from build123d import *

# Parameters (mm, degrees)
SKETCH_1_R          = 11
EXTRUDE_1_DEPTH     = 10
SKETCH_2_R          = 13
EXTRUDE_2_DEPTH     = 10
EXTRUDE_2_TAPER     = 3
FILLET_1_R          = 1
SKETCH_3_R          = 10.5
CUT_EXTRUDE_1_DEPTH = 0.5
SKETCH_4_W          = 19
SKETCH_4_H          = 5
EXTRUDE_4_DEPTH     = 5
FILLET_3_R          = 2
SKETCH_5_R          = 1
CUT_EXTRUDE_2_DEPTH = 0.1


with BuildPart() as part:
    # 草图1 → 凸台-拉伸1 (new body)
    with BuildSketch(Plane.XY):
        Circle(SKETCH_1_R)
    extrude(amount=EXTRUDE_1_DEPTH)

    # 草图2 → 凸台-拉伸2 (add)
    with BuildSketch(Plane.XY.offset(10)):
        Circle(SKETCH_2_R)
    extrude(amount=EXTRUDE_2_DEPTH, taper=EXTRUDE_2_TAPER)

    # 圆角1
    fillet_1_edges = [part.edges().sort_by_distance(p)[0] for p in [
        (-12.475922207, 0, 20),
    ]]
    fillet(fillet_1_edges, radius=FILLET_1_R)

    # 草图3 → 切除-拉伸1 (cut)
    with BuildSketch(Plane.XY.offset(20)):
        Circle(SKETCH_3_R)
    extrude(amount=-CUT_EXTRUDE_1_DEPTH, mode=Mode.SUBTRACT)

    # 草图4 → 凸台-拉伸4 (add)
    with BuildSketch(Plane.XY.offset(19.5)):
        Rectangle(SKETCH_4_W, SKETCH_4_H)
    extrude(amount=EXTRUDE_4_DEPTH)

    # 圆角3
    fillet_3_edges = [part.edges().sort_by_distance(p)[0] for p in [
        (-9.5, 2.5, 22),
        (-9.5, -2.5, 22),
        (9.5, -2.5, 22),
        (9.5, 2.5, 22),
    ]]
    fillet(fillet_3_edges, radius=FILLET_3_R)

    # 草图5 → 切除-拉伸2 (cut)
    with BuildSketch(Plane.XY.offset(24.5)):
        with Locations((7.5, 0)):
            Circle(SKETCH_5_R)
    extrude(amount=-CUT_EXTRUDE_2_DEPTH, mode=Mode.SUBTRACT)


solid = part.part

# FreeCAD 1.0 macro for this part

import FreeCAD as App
import Part
import Sketcher
from FreeCAD import Vector
Q = App.Units.Quantity


def edges_at(feature, points):
    """Names of the edges that pass closest to the given points."""
    edges = feature.Shape.Edges
    near = lambda p: min(range(len(edges)), key=lambda i: edges[i].distToShape(Part.Vertex(*p))[0])
    return sorted({f"Edge{near(p) + 1}" for p in points})


def add_polygon(sketch, points):
    """Adds a closed chain of lines whose ends are joined by coincident constraints."""
    first, n = sketch.GeometryCount, len(points)
    for a, b in zip(points, points[1:] + points[:1]):
        sketch.addGeometry(Part.LineSegment(App.Vector(*a, 0), App.Vector(*b, 0)), False)
    for i in range(n):
        sketch.addConstraint(Sketcher.Constraint("Coincident", first + i, 2, first + (i + 1) % n, 1))

doc = App.newDocument("Part")
body = doc.addObject("PartDesign::Body", "Body")

# Sketch on XY plane
sketch1 = body.newObject("Sketcher::SketchObject", "Sketch")
sketch1.AttachmentSupport = (doc.getObject("XY_Plane"), [""])
sketch1.MapMode = "FlatFace"
sketch1.addGeometry(Part.Circle(Vector(0, 0, 0), Vector(0, 0, 1), 11), False)
sketch1.addConstraint([
    Sketcher.Constraint("Coincident", 0, 3, -1, 1),
    Sketcher.Constraint("Diameter", 0, Q("22 mm")),
])
pad1 = body.newObject("PartDesign::Pad", "Pad")
pad1.Profile = sketch1
pad1.Length = 10

# Sketch on XY plane
sketch2 = body.newObject("Sketcher::SketchObject", "Sketch001")
sketch2.AttachmentSupport = (doc.getObject("XY_Plane"), [""])
sketch2.MapMode = "FlatFace"
sketch2.AttachmentOffset = App.Placement(Vector(0, 0, 10), App.Rotation())
sketch2.addGeometry(Part.Circle(Vector(0, 0, 0), Vector(0, 0, 1), 13), False)
sketch2.addConstraint([
    Sketcher.Constraint("Coincident", 0, 3, -1, 1),
    Sketcher.Constraint("Diameter", 0, Q("26 mm")),
])
pad2 = body.newObject("PartDesign::Pad", "Pad001")
pad2.Profile = sketch2
pad2.Length = 10
pad2.TaperAngle = -3
doc.recompute()

fillet = body.newObject("PartDesign::Fillet", "Fillet")
fillet.Base = (pad2, edges_at(pad2, [(-12.476, 0, 20)]))
fillet.Radius = 1

# Sketch on XY plane
sketch3 = body.newObject("Sketcher::SketchObject", "Sketch002")
sketch3.AttachmentSupport = (doc.getObject("XY_Plane"), [""])
sketch3.MapMode = "FlatFace"
sketch3.AttachmentOffset = App.Placement(Vector(0, 0, 20), App.Rotation())
sketch3.addGeometry(Part.Circle(Vector(0, 0, 0), Vector(0, 0, 1), 10.5), False)
sketch3.addConstraint([
    Sketcher.Constraint("Coincident", 0, 3, -1, 1),
    Sketcher.Constraint("Diameter", 0, Q("21 mm")),
])
pocket1 = body.newObject("PartDesign::Pocket", "Pocket")
pocket1.Profile = sketch3
pocket1.Length = 0.5

# Sketch on XY plane
sketch4 = body.newObject("Sketcher::SketchObject", "Sketch003")
sketch4.AttachmentSupport = (doc.getObject("XY_Plane"), [""])
sketch4.MapMode = "FlatFace"
sketch4.AttachmentOffset = App.Placement(Vector(0, 0, 19.5), App.Rotation())
add_polygon(sketch4, [(-9.5, 2.5), (-9.5, -2.5), (9.5, -2.5), (9.5, 2.5)])  # lines 0-3
sketch4.addConstraint([
    Sketcher.Constraint("Vertical", 0),
    Sketcher.Constraint("Horizontal", 1),
    Sketcher.Constraint("Vertical", 2),
    Sketcher.Constraint("Horizontal", 3),
    Sketcher.Constraint("Symmetric", 0, 2, 2, 2, -1, 1),
    Sketcher.Constraint("DistanceX", 1, 1, 1, 2, Q("19 mm")),
    Sketcher.Constraint("DistanceY", 0, 2, 0, 1, Q("5 mm")),
])
pad3 = body.newObject("PartDesign::Pad", "Pad002")
pad3.Profile = sketch4
pad3.Length = 5
doc.recompute()

fillet2 = body.newObject("PartDesign::Fillet", "Fillet001")
fillet2.Base = (pad3, edges_at(pad3, [
    (-9.5, 2.5, 22),
    (-9.5, -2.5, 22),
    (9.5, -2.5, 22),
    (9.5, 2.5, 22),
]))
fillet2.Radius = 2

# Sketch on XY plane
sketch5 = body.newObject("Sketcher::SketchObject", "Sketch004")
sketch5.AttachmentSupport = (doc.getObject("XY_Plane"), [""])
sketch5.MapMode = "FlatFace"
sketch5.AttachmentOffset = App.Placement(Vector(0, 0, 24.5), App.Rotation())
sketch5.addGeometry(Part.Circle(Vector(7.5, 0, 0), Vector(0, 0, 1), 1), False)
sketch5.addConstraint([
    Sketcher.Constraint("PointOnObject", 0, 3, -1),
    Sketcher.Constraint("Diameter", 0, Q("2 mm")),
    Sketcher.Constraint("DistanceX", -1, 1, 0, 3, Q("7.5 mm")),
])
pocket2 = body.newObject("PartDesign::Pocket", "Pocket001")
pocket2.Profile = sketch5
pocket2.Length = 0.1

doc.recompute()
